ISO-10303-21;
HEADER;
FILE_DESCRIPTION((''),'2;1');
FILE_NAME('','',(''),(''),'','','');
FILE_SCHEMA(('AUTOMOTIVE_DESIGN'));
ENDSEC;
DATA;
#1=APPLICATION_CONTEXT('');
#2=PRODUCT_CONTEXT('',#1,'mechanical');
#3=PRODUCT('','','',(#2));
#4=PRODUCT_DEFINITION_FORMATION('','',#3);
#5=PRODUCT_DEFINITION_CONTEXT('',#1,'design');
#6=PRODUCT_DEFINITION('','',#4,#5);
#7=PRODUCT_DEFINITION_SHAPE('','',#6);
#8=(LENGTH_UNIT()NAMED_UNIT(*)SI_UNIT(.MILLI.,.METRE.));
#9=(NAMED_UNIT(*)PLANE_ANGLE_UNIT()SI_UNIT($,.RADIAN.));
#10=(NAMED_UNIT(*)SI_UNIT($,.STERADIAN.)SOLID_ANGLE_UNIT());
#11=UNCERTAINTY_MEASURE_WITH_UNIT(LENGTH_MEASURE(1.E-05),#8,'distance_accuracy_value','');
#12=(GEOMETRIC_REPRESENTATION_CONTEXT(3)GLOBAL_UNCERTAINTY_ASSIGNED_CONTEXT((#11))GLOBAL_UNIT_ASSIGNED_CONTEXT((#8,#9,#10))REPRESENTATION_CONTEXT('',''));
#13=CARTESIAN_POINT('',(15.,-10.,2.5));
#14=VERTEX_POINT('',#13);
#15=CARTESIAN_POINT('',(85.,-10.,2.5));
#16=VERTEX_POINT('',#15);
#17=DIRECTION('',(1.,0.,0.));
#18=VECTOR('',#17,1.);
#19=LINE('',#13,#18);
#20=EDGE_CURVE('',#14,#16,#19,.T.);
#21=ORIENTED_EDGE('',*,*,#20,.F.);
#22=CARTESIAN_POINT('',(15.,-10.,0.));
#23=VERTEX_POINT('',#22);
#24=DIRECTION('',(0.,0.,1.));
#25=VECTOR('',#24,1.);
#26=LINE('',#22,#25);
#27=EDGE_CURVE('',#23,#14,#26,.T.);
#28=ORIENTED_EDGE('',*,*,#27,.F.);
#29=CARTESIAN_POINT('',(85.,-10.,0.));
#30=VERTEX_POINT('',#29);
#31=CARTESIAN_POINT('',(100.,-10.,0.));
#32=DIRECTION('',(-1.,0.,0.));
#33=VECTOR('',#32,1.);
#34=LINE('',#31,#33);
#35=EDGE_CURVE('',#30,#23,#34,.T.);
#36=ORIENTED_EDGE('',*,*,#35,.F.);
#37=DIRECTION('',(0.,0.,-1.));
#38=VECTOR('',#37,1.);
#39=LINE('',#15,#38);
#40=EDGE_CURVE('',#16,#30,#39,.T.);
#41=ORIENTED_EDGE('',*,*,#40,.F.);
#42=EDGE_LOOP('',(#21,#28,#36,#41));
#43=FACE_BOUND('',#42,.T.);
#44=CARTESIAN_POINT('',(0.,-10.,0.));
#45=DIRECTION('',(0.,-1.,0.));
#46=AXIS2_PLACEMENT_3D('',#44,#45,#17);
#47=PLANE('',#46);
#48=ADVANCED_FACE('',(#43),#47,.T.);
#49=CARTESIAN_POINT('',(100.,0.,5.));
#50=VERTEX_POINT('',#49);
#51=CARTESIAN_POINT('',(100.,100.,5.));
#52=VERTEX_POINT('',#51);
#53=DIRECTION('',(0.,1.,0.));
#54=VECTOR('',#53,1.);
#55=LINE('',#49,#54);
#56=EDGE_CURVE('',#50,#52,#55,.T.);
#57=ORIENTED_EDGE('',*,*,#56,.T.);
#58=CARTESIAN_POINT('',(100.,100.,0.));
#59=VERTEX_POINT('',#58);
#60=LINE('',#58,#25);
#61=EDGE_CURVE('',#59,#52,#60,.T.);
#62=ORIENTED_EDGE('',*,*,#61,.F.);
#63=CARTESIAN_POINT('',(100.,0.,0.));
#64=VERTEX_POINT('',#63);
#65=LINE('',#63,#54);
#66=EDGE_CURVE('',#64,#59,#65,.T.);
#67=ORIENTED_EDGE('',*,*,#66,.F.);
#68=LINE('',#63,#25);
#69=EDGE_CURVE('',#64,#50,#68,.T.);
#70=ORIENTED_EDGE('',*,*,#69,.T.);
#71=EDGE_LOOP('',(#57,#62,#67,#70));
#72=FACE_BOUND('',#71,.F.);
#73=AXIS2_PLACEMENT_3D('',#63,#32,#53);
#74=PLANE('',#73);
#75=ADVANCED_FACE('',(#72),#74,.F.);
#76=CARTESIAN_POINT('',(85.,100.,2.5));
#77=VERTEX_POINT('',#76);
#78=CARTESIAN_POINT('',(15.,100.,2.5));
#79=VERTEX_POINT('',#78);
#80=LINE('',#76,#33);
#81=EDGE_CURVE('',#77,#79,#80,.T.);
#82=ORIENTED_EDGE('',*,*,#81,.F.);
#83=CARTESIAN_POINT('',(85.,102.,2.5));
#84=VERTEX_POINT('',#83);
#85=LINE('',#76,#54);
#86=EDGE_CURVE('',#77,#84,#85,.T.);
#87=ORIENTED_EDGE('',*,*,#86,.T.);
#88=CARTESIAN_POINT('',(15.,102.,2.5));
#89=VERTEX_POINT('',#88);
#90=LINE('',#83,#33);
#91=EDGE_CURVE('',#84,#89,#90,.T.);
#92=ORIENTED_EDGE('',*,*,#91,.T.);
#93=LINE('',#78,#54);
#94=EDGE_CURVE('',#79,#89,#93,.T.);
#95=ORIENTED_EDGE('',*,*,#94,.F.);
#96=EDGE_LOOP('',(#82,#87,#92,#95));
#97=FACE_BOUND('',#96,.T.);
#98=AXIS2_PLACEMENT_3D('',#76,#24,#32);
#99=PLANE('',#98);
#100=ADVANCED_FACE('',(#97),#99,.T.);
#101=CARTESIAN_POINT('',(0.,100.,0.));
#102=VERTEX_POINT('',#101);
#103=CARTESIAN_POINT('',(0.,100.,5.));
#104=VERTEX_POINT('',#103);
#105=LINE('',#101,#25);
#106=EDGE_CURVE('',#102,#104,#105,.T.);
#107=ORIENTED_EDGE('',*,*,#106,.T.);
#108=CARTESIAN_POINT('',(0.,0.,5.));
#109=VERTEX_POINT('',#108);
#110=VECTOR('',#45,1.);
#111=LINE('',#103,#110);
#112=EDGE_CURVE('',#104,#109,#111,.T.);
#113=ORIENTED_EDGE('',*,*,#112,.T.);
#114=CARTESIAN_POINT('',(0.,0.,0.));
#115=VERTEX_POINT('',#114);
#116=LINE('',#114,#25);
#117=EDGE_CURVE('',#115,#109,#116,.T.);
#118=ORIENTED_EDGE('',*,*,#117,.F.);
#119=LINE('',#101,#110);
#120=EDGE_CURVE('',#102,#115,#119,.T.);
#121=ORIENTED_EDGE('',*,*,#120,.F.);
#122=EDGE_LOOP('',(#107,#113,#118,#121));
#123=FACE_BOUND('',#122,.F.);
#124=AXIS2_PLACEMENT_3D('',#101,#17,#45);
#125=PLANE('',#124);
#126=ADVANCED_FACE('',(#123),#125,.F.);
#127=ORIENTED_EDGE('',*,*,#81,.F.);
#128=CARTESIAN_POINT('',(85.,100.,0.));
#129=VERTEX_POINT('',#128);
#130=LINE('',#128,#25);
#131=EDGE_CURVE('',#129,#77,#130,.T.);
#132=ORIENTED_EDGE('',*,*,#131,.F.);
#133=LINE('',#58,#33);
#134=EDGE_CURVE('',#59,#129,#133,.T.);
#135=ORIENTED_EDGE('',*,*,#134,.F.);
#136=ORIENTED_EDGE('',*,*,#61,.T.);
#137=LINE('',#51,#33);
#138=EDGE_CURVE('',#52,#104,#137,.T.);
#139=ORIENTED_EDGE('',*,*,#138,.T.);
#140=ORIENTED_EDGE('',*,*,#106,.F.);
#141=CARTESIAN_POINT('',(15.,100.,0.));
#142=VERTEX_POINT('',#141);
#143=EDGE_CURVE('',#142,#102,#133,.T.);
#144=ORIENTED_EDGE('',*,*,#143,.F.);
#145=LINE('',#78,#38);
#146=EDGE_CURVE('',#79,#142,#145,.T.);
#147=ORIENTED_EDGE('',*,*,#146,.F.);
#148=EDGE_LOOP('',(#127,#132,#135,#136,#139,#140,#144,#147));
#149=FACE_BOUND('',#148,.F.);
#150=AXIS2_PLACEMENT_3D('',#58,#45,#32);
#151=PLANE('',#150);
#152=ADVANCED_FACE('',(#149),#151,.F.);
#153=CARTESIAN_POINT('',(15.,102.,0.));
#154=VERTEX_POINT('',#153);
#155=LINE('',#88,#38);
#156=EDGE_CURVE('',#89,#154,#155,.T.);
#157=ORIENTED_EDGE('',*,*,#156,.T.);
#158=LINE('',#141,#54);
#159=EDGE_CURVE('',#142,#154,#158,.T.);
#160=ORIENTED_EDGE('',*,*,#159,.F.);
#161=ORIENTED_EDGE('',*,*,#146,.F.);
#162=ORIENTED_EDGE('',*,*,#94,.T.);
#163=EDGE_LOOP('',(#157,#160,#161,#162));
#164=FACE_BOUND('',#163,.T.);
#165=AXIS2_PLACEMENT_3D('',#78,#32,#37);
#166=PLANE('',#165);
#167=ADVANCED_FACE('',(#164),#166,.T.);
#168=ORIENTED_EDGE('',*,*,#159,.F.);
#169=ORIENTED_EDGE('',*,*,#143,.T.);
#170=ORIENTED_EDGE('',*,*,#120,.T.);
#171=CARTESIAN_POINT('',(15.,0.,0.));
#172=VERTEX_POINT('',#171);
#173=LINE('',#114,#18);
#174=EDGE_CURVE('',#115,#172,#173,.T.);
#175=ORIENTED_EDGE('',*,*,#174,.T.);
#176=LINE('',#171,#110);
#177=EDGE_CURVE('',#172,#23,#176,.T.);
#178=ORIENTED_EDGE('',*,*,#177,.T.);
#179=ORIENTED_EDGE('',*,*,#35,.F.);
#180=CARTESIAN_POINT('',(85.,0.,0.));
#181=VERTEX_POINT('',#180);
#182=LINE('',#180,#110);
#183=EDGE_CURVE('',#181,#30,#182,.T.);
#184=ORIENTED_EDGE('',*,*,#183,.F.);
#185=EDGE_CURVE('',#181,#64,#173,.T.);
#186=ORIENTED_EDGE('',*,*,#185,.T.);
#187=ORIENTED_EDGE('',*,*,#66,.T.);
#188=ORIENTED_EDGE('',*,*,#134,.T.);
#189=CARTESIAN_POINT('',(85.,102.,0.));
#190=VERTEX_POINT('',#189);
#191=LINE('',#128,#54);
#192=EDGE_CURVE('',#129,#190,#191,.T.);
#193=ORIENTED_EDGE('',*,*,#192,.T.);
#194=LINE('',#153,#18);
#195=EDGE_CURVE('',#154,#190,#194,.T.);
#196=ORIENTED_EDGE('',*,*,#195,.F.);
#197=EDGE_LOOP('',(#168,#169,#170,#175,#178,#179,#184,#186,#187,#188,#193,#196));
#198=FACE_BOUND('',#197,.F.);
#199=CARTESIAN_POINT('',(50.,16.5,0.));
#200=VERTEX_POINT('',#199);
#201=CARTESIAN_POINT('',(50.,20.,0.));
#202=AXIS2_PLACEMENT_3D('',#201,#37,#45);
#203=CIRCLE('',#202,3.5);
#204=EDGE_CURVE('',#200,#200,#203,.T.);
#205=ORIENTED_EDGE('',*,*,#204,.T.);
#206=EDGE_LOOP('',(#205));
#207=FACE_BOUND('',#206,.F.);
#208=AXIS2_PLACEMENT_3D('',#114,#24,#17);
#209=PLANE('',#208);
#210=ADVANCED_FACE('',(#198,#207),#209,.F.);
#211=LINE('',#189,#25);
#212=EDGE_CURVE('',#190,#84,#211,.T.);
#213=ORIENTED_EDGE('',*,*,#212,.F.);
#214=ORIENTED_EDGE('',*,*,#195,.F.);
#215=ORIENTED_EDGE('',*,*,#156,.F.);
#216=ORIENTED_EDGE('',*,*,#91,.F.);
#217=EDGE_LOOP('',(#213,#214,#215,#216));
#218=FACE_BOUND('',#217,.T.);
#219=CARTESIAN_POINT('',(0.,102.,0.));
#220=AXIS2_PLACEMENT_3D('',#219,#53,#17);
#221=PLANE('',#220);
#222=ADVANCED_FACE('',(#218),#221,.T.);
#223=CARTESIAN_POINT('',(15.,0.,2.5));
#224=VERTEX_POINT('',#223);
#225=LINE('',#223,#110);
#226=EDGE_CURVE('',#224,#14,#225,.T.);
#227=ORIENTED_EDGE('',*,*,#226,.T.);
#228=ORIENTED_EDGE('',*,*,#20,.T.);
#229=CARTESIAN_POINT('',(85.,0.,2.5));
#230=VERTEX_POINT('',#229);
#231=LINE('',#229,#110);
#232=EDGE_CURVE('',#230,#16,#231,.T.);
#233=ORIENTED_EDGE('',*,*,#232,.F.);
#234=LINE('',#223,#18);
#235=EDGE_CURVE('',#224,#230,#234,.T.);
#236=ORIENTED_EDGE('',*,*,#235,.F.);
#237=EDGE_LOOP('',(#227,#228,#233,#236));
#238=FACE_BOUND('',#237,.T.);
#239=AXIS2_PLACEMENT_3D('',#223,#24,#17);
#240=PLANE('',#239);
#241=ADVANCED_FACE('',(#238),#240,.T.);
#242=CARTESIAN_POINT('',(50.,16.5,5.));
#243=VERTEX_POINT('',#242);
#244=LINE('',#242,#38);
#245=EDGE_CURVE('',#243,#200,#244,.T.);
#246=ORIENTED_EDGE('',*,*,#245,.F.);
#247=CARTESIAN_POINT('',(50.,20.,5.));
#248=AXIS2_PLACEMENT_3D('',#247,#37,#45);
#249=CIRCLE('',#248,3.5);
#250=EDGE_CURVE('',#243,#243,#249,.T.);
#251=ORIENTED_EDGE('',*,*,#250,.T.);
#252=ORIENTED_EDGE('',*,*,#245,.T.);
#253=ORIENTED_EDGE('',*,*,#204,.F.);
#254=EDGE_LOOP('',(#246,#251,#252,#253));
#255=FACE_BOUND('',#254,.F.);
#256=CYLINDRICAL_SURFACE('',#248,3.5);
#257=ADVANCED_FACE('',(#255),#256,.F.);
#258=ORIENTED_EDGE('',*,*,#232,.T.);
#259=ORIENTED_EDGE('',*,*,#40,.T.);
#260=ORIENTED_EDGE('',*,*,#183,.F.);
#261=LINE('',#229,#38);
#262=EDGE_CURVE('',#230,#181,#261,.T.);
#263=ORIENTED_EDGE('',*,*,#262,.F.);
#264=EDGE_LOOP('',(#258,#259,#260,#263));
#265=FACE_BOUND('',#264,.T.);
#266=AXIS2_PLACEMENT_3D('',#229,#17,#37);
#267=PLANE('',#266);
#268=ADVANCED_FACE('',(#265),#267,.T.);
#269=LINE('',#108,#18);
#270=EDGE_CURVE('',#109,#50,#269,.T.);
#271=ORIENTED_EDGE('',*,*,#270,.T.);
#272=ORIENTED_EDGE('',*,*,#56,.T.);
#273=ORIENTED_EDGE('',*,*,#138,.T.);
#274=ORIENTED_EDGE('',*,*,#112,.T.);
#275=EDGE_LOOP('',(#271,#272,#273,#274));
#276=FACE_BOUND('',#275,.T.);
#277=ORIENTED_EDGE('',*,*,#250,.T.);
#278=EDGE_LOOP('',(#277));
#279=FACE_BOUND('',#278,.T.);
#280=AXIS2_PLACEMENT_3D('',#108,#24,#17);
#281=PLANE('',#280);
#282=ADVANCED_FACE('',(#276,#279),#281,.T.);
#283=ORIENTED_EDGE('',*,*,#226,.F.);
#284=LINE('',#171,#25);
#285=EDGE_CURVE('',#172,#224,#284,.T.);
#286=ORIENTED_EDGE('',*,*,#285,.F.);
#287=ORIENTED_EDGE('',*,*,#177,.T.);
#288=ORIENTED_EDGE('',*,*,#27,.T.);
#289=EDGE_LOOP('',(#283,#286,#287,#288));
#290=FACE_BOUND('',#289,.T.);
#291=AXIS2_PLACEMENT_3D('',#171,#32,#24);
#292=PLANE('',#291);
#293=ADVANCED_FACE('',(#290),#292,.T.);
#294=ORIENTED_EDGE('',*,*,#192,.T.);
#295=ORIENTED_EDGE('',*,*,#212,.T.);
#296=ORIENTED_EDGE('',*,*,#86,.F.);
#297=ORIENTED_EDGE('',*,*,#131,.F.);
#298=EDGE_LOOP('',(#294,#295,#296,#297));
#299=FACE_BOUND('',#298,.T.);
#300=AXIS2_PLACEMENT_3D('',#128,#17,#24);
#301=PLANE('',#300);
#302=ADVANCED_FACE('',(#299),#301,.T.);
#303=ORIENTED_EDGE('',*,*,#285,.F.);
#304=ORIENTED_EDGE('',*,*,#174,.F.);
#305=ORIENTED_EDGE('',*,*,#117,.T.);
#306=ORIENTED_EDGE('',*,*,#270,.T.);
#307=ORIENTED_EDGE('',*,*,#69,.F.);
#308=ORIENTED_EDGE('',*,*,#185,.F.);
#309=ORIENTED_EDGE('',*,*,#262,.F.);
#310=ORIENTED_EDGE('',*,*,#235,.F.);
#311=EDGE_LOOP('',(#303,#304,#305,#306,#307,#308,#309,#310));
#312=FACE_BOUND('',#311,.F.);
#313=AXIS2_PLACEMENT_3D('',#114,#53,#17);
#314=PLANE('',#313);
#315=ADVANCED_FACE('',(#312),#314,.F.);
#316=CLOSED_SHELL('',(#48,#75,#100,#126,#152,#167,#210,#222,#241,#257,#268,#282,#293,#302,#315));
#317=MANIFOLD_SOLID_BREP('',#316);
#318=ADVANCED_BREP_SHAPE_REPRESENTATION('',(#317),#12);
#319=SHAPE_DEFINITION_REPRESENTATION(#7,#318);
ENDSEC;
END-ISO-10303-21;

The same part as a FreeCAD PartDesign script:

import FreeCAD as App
import Part
import Sketcher

V = App.Vector
Q = App.Units.Quantity

doc = App.newDocument("Part")
body = doc.addObject("PartDesign::Body", "Body")

sketch1 = body.newObject("Sketcher::SketchObject", "Sketch")
sketch1.AttachmentSupport = (doc.getObject("XY_Plane"), [""])
sketch1.MapMode = "FlatFace"
sketch1.addGeometry(Part.LineSegment(V(0, 100, 0), V(0, 0, 0)), False)
sketch1.addGeometry(Part.LineSegment(V(0, 0, 0), V(100, 0, 0)), False)
sketch1.addGeometry(Part.LineSegment(V(100, 0, 0), V(100, 100, 0)), False)
sketch1.addGeometry(Part.LineSegment(V(100, 100, 0), V(0, 100, 0)), False)
sketch1.addConstraint(Sketcher.Constraint("Coincident", 0, 2, 1, 1))
sketch1.addConstraint(Sketcher.Constraint("Coincident", 1, 2, 2, 1))
sketch1.addConstraint(Sketcher.Constraint("Coincident", 2, 2, 3, 1))
sketch1.addConstraint(Sketcher.Constraint("Coincident", 3, 2, 0, 1))
sketch1.addConstraint(Sketcher.Constraint("Vertical", 0))
sketch1.addConstraint(Sketcher.Constraint("Horizontal", 1))
sketch1.addConstraint(Sketcher.Constraint("Vertical", 2))
sketch1.addConstraint(Sketcher.Constraint("Horizontal", 3))
sketch1.addConstraint(Sketcher.Constraint("Coincident", 0, 2, -1, 1))
sketch1.addConstraint(Sketcher.Constraint("Equal", 3, 0))
sketch1.addConstraint(Sketcher.Constraint("DistanceX", 1, 1, 1, 2, Q("100 mm")))
pad1 = body.newObject("PartDesign::Pad", "Pad")
pad1.Profile = sketch1
pad1.Length = 5

sketch2 = body.newObject("Sketcher::SketchObject", "Sketch001")
sketch2.AttachmentSupport = (doc.getObject("XZ_Plane"), [""])
sketch2.MapMode = "FlatFace"
sketch2.addGeometry(Part.LineSegment(V(15, 0, 0), V(85, 0, 0)), False)
sketch2.addGeometry(Part.LineSegment(V(85, 0, 0), V(85, 2.5, 0)), False)
sketch2.addGeometry(Part.LineSegment(V(85, 2.5, 0), V(15, 2.5, 0)), False)
sketch2.addGeometry(Part.LineSegment(V(15, 2.5, 0), V(15, 0, 0)), False)
sketch2.addConstraint(Sketcher.Constraint("Coincident", 0, 2, 1, 1))
sketch2.addConstraint(Sketcher.Constraint("Coincident", 1, 2, 2, 1))
sketch2.addConstraint(Sketcher.Constraint("Coincident", 2, 2, 3, 1))
sketch2.addConstraint(Sketcher.Constraint("Coincident", 3, 2, 0, 1))
sketch2.addConstraint(Sketcher.Constraint("Horizontal", 0))
sketch2.addConstraint(Sketcher.Constraint("Vertical", 1))
sketch2.addConstraint(Sketcher.Constraint("Horizontal", 2))
sketch2.addConstraint(Sketcher.Constraint("Vertical", 3))
sketch2.addConstraint(Sketcher.Constraint("PointOnObject", 0, 2, -1))
sketch2.addConstraint(Sketcher.Constraint("DistanceX", 0, 1, 0, 2, Q("70 mm")))
sketch2.addConstraint(Sketcher.Constraint("DistanceY", 1, 1, 1, 2, Q("2.5 mm")))
sketch2.addConstraint(Sketcher.Constraint("DistanceX", -1, 1, 0, 2, Q("85 mm")))
pad2 = body.newObject("PartDesign::Pad", "Pad001")
pad2.Profile = sketch2
pad2.Length = 10

sketch3 = body.newObject("Sketcher::SketchObject", "Sketch002")
sketch3.AttachmentSupport = (doc.getObject("XY_Plane"), [""])
sketch3.MapMode = "FlatFace"
sketch3.AttachmentOffset = App.Placement(V(0, 0, 5), App.Rotation())
sketch3.addGeometry(Part.Circle(V(50, 20, 0), V(0, 0, 1), 3.5), False)
sketch3.addConstraint(Sketcher.Constraint("Diameter", 0, Q("7 mm")))
sketch3.addConstraint(Sketcher.Constraint("DistanceX", -1, 1, 0, 3, Q("50 mm")))
sketch3.addConstraint(Sketcher.Constraint("DistanceY", -1, 1, 0, 3, Q("20 mm")))
doc.recompute()
hole = body.newObject("PartDesign::Hole", "Hole")
hole.Profile = sketch3
hole.ThreadType = "None"
hole.Diameter = 7
hole.DepthType = "ThroughAll"

sketch4 = body.newObject("Sketcher::SketchObject", "Sketch003")
sketch4.AttachmentSupport = (doc.getObject("XZ_Plane"), [""])
sketch4.MapMode = "FlatFace"
sketch4.AttachmentOffset = App.Placement(V(0, 0, -100), App.Rotation())
sketch4.addGeometry(Part.LineSegment(V(85, 0, 0), V(15, 0, 0)), False)
sketch4.addGeometry(Part.LineSegment(V(15, 0, 0), V(15, 2.5, 0)), False)
sketch4.addGeometry(Part.LineSegment(V(15, 2.5, 0), V(85, 2.5, 0)), False)
sketch4.addGeometry(Part.LineSegment(V(85, 2.5, 0), V(85, 0, 0)), False)
sketch4.addConstraint(Sketcher.Constraint("Coincident", 0, 2, 1, 1))
sketch4.addConstraint(Sketcher.Constraint("Coincident", 1, 2, 2, 1))
sketch4.addConstraint(Sketcher.Constraint("Coincident", 2, 2, 3, 1))
sketch4.addConstraint(Sketcher.Constraint("Coincident", 3, 2, 0, 1))
sketch4.addConstraint(Sketcher.Constraint("Horizontal", 0))
sketch4.addConstraint(Sketcher.Constraint("Vertical", 1))
sketch4.addConstraint(Sketcher.Constraint("Horizontal", 2))
sketch4.addConstraint(Sketcher.Constraint("Vertical", 3))
sketch4.addConstraint(Sketcher.Constraint("PointOnObject", 0, 2, -1))
sketch4.addConstraint(Sketcher.Constraint("DistanceX", 0, 2, 0, 1, Q("70 mm")))
sketch4.addConstraint(Sketcher.Constraint("DistanceY", 1, 1, 1, 2, Q("2.5 mm")))
sketch4.addConstraint(Sketcher.Constraint("DistanceX", -1, 1, 0, 2, Q("15 mm")))
pad3 = body.newObject("PartDesign::Pad", "Pad002")
pad3.Profile = sketch4
pad3.Length = 2
pad3.Reversed = True

doc.recompute()
